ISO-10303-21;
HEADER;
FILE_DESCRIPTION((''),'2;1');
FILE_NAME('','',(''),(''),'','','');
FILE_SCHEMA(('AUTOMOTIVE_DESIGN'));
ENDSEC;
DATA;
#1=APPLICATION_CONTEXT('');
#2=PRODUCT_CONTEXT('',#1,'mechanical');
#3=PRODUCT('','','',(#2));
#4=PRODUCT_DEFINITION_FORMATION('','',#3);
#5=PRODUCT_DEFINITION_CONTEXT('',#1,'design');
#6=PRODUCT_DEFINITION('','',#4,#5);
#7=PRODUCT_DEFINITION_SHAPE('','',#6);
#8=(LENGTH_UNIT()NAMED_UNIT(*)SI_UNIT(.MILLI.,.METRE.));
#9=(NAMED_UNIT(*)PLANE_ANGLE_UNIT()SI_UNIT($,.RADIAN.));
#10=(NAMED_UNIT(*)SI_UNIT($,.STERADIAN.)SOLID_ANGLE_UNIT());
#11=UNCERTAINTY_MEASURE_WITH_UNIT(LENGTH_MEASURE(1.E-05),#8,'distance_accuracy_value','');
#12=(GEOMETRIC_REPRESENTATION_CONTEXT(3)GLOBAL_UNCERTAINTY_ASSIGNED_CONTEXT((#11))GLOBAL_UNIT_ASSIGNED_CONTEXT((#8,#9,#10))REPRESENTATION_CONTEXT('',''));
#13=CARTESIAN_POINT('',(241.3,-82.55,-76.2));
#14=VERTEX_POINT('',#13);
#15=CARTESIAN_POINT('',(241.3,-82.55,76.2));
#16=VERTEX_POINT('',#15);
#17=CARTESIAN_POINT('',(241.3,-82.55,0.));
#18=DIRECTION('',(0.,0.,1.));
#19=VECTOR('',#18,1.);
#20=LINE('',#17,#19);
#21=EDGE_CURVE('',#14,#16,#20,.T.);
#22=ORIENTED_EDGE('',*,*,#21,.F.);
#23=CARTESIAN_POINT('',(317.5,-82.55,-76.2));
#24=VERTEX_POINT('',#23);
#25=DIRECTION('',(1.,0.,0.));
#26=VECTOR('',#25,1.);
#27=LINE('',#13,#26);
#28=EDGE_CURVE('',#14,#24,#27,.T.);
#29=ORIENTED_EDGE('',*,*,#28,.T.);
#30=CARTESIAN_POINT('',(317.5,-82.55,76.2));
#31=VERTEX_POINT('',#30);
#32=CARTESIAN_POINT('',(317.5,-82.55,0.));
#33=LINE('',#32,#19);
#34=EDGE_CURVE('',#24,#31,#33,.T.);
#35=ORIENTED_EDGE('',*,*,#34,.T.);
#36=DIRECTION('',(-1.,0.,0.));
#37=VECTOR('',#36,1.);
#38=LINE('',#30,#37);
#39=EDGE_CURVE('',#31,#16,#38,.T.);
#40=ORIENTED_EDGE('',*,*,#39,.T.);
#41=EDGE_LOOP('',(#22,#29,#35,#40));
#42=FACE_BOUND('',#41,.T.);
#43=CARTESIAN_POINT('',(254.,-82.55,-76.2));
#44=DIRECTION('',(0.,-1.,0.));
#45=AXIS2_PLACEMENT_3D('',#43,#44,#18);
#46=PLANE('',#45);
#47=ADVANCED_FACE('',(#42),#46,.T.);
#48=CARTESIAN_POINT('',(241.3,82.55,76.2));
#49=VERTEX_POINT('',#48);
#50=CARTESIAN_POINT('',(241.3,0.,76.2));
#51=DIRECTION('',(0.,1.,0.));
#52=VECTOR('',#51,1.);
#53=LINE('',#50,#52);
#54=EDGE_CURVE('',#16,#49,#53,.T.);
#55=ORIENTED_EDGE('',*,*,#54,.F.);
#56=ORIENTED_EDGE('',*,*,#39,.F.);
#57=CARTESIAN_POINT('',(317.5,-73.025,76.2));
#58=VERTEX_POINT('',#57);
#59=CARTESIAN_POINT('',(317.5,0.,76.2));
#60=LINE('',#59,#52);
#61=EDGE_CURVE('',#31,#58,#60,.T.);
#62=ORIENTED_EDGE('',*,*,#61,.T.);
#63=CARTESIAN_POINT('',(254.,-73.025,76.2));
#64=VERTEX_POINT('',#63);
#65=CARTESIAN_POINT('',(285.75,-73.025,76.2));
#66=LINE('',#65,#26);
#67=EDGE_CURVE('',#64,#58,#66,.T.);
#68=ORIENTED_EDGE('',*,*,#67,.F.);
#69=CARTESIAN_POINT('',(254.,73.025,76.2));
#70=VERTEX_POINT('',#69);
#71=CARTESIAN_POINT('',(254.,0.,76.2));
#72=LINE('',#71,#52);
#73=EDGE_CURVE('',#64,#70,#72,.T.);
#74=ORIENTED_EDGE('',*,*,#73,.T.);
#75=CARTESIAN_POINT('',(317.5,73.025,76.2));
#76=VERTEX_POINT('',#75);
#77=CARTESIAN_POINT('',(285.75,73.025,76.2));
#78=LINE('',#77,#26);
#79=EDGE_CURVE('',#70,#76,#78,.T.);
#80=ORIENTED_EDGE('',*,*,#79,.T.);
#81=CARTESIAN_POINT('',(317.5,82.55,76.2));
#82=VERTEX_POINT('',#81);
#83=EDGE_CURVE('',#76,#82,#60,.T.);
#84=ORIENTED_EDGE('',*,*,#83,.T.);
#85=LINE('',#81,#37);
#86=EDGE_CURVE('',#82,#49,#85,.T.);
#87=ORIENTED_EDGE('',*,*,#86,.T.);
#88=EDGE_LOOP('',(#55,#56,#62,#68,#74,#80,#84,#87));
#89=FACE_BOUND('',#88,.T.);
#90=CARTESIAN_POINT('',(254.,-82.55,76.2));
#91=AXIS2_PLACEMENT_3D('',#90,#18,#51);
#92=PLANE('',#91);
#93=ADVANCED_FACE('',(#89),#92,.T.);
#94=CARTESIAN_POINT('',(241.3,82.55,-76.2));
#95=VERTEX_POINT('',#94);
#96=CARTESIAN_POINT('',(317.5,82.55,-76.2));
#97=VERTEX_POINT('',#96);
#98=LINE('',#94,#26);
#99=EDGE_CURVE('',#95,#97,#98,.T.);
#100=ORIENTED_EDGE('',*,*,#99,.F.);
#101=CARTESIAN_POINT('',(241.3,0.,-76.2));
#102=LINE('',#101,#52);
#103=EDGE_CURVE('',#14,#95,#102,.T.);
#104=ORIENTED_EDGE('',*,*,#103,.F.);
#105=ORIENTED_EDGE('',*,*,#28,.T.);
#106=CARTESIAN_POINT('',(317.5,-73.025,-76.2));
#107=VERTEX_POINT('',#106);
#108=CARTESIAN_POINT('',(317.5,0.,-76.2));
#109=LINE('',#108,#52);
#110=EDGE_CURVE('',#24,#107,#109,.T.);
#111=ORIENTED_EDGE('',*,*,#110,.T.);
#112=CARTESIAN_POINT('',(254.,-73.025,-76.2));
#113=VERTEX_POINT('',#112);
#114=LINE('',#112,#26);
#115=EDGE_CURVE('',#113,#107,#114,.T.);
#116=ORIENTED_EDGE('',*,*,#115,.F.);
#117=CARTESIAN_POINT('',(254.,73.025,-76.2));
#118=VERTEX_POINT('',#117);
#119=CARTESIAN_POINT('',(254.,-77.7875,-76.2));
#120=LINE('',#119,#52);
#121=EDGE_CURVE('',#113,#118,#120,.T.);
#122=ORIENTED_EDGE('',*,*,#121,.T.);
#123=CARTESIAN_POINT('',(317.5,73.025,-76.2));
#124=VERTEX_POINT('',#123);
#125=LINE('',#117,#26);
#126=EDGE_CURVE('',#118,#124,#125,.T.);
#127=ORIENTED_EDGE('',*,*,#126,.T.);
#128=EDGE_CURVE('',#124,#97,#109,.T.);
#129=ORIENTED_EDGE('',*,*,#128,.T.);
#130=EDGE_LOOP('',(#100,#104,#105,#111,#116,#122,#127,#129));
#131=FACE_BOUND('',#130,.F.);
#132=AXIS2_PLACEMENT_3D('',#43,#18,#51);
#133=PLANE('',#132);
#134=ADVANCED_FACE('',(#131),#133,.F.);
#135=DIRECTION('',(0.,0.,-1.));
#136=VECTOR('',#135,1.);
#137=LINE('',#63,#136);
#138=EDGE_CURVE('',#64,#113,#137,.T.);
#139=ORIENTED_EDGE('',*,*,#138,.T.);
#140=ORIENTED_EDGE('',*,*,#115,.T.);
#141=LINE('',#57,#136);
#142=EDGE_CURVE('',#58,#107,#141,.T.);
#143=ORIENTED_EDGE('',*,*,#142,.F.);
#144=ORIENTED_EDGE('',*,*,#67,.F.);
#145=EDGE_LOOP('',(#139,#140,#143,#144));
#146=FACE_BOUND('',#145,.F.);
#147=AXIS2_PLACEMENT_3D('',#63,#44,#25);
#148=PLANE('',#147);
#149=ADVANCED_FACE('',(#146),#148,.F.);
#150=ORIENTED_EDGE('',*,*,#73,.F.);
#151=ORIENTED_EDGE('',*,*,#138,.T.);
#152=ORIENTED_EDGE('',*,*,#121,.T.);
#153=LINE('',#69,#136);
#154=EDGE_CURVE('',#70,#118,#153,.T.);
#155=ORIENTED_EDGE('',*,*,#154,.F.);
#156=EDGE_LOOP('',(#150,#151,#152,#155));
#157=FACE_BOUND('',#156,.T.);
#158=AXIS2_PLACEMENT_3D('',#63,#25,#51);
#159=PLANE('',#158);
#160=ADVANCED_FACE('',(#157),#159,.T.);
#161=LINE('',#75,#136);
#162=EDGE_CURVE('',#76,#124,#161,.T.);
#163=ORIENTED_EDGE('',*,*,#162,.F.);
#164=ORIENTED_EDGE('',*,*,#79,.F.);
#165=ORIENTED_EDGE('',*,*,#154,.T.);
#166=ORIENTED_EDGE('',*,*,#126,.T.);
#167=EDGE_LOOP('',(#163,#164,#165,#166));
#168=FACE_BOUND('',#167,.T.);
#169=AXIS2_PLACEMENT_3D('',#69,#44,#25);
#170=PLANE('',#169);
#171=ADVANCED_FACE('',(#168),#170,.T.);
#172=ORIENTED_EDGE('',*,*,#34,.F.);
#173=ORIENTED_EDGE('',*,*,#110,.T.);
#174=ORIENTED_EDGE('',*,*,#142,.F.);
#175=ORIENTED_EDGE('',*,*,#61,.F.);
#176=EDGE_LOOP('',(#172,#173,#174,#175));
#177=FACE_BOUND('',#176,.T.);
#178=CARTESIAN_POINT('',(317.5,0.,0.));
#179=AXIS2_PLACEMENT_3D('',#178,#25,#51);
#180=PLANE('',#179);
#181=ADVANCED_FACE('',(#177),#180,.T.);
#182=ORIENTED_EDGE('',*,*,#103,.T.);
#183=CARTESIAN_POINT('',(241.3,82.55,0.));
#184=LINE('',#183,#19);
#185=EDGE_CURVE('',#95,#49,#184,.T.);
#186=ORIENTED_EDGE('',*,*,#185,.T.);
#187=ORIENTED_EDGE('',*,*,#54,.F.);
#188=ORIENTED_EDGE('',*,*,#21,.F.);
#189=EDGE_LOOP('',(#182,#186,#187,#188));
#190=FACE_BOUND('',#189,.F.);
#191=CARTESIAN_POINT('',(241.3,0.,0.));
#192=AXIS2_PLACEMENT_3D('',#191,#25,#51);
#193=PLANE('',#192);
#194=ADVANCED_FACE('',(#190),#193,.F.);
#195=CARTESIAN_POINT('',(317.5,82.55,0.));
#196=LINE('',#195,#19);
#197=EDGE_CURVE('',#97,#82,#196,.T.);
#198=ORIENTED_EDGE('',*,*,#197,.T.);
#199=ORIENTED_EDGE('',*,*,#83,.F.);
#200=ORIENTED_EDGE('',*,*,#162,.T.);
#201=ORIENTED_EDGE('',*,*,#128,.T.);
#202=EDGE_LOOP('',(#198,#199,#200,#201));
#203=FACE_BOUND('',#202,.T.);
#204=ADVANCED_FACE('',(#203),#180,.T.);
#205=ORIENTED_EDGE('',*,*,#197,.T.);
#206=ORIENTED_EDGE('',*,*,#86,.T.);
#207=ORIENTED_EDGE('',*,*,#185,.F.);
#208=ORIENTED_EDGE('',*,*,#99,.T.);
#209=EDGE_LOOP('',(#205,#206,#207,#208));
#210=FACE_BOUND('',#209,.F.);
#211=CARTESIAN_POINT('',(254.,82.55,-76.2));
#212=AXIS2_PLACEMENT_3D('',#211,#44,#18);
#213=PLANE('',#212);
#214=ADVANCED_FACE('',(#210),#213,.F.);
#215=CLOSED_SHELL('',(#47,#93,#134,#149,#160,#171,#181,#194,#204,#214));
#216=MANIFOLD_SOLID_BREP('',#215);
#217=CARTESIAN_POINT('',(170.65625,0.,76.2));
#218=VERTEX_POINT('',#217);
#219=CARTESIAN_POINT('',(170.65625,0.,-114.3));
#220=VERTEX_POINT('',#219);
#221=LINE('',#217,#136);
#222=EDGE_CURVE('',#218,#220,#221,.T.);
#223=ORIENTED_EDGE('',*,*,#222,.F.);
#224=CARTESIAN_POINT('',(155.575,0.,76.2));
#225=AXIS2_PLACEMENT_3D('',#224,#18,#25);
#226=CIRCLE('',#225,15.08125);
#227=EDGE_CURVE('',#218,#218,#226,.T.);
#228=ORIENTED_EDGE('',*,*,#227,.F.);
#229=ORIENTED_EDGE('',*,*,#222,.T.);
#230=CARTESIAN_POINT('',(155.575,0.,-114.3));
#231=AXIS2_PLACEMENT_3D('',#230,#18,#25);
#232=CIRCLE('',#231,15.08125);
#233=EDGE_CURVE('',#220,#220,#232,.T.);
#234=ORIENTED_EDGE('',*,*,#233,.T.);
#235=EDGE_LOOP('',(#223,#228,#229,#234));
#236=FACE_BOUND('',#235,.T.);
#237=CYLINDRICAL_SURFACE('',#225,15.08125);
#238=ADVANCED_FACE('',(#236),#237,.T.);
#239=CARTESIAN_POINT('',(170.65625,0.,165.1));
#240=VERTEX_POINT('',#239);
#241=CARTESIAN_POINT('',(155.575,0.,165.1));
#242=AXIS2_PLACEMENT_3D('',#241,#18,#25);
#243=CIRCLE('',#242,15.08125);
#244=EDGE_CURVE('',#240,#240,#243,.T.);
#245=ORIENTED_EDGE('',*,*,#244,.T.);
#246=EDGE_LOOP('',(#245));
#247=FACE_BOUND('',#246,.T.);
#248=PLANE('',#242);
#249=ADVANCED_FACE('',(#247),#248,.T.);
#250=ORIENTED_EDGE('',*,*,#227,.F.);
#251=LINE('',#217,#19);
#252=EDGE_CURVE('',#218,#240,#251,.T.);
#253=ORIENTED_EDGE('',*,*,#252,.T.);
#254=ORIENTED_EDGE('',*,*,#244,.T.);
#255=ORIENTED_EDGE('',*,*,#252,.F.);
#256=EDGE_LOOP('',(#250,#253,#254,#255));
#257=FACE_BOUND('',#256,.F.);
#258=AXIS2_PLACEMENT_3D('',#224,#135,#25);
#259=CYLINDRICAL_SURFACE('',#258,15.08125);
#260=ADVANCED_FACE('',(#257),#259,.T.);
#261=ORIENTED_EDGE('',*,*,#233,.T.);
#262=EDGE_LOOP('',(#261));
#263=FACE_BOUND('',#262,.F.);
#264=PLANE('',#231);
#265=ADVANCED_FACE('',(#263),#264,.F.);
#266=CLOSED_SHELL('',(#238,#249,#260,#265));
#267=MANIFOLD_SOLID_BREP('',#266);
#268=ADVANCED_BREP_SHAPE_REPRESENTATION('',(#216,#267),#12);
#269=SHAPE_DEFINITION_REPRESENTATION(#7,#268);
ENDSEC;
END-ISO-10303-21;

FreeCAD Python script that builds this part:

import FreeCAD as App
import Part
import Sketcher
from FreeCAD import Vector
Q = App.Units.Quantity


def add_polygon(sketch, points):
    """Adds a closed chain of lines whose ends are joined by coincident constraints."""
    first, n = sketch.GeometryCount, len(points)
    for a, b in zip(points, points[1:] + points[:1]):
        sketch.addGeometry(Part.LineSegment(App.Vector(*a, 0), App.Vector(*b, 0)), False)
    for i in range(n):
        sketch.addConstraint(Sketcher.Constraint("Coincident", first + i, 2, first + (i + 1) % n, 1))

doc = App.newDocument("Part")
params = doc.addObject("Spreadsheet::Sheet", "Params")
for row, (alias, value) in enumerate([
    ("sketch1_height", "6 in"),
    ("sketch1_width", "6.5 in"),
    ("pad1_length", "0.5 in"),
    ("pad1_length2", "2.5 in"),
    ("sketch2_width", "2.5 in"),
    ("sketch2_height", "5.75 in"),
    ("sketch3_diameter", "1.1875 in"),
    ("pad2_length", "7.5 in"),
    ("pad2_length2", "3.5 in"),
], start=1):
    params.set(f"A{row}", alias)
    params.set(f"B{row}", "=" + value)
    params.setAlias(f"B{row}", alias)

body = doc.addObject("PartDesign::Body", "Body")

sketch1 = body.newObject("Sketcher::SketchObject", "Sketch")
sketch1.AttachmentSupport = (doc.getObject("YZ_Plane"), [""])
sketch1.MapMode = "FlatFace"
sketch1.AttachmentOffset = App.Placement(Vector(0, 0, 10 * 25.4), App.Rotation())
add_polygon(sketch1, [(-82.55, 76.2), (-82.55, -76.2), (82.55, -76.2), (82.55, 76.2)])
sketch1.addConstraint(Sketcher.Constraint("Vertical", 0))
sketch1.addConstraint(Sketcher.Constraint("Horizontal", 1))
sketch1.addConstraint(Sketcher.Constraint("Vertical", 2))
sketch1.addConstraint(Sketcher.Constraint("Horizontal", 3))
sketch1.addConstraint(Sketcher.Constraint("Symmetric", 0, 2, 2, 2, -1, 1))
sketch1.addConstraint(Sketcher.Constraint("DistanceY", 0, 2, 0, 1, Q("6 in")))
sketch1.addConstraint(Sketcher.Constraint("DistanceX", 1, 1, 1, 2, Q("6.5 in")))
sketch1.setExpression("Constraints[9]", "Params.sketch1_height")
sketch1.setExpression("Constraints[10]", "Params.sketch1_width")
pad1 = body.newObject("PartDesign::Pad", "Pad")
pad1.Profile = sketch1
pad1.Type = "TwoLengths"
pad1.setExpression("Length", "Params.pad1_length")
pad1.setExpression("Length2", "Params.pad1_length2")
pad1.Reversed = True

sketch2 = body.newObject("Sketcher::SketchObject", "Sketch001")
sketch2.AttachmentSupport = (doc.getObject("XY_Plane"), [""])
sketch2.MapMode = "FlatFace"
sketch2.AttachmentOffset = App.Placement(Vector(0, 0, 3 * 25.4), App.Rotation())
add_polygon(sketch2, [(254, 73.025), (254, -73.025), (317.5, -73.025), (317.5, 73.025)])
sketch2.addConstraint(Sketcher.Constraint("Vertical", 0))
sketch2.addConstraint(Sketcher.Constraint("Horizontal", 1))
sketch2.addConstraint(Sketcher.Constraint("Vertical", 2))
sketch2.addConstraint(Sketcher.Constraint("Horizontal", 3))
sketch2.addConstraint(Sketcher.Constraint("DistanceX", 1, 1, 1, 2, Q("2.5 in")))
sketch2.addConstraint(Sketcher.Constraint("DistanceX", -1, 1, 0, 2, Q("10 in")))
sketch2.addConstraint(Sketcher.Constraint("DistanceY", 0, 2, 0, 1, Q("5.75 in")))
sketch2.addConstraint(Sketcher.Constraint("DistanceY", 0, 2, -1, 1, Q("2.875 in")))
sketch2.setExpression("Constraints[8]", "Params.sketch2_width")
sketch2.setExpression("Constraints[10]", "Params.sketch2_height")
pocket1 = body.newObject("PartDesign::Pocket", "Pocket")
pocket1.Profile = sketch2
pocket1.Type = "ThroughAll"
body2 = doc.addObject("PartDesign::Body", "Body001")

sketch3 = body2.newObject("Sketcher::SketchObject", "Sketch002")
sketch3.AttachmentSupport = (doc.getObject("XY_Plane001"), [""])
sketch3.MapMode = "FlatFace"
sketch3.AttachmentOffset = App.Placement(Vector(0, 0, 3 * 25.4), App.Rotation())
sketch3.addGeometry(Part.Circle(Vector(155.575, 0, 0), Vector(0, 0, 1), 15.08125), False)
sketch3.addConstraint(Sketcher.Constraint("PointOnObject", 0, 3, -1))
sketch3.addConstraint(Sketcher.Constraint("Diameter", 0, Q("1.1875 in")))
sketch3.addConstraint(Sketcher.Constraint("DistanceX", -1, 1, 0, 3, Q("6.125 in")))
sketch3.setExpression("Constraints[1]", "Params.sketch3_diameter")
pad2 = body2.newObject("PartDesign::Pad", "Pad001")
pad2.Profile = sketch3
pad2.Type = "TwoLengths"
pad2.setExpression("Length", "Params.pad2_length")
pad2.setExpression("Length2", "Params.pad2_length2")
pad2.Reversed = True

doc.recompute()
